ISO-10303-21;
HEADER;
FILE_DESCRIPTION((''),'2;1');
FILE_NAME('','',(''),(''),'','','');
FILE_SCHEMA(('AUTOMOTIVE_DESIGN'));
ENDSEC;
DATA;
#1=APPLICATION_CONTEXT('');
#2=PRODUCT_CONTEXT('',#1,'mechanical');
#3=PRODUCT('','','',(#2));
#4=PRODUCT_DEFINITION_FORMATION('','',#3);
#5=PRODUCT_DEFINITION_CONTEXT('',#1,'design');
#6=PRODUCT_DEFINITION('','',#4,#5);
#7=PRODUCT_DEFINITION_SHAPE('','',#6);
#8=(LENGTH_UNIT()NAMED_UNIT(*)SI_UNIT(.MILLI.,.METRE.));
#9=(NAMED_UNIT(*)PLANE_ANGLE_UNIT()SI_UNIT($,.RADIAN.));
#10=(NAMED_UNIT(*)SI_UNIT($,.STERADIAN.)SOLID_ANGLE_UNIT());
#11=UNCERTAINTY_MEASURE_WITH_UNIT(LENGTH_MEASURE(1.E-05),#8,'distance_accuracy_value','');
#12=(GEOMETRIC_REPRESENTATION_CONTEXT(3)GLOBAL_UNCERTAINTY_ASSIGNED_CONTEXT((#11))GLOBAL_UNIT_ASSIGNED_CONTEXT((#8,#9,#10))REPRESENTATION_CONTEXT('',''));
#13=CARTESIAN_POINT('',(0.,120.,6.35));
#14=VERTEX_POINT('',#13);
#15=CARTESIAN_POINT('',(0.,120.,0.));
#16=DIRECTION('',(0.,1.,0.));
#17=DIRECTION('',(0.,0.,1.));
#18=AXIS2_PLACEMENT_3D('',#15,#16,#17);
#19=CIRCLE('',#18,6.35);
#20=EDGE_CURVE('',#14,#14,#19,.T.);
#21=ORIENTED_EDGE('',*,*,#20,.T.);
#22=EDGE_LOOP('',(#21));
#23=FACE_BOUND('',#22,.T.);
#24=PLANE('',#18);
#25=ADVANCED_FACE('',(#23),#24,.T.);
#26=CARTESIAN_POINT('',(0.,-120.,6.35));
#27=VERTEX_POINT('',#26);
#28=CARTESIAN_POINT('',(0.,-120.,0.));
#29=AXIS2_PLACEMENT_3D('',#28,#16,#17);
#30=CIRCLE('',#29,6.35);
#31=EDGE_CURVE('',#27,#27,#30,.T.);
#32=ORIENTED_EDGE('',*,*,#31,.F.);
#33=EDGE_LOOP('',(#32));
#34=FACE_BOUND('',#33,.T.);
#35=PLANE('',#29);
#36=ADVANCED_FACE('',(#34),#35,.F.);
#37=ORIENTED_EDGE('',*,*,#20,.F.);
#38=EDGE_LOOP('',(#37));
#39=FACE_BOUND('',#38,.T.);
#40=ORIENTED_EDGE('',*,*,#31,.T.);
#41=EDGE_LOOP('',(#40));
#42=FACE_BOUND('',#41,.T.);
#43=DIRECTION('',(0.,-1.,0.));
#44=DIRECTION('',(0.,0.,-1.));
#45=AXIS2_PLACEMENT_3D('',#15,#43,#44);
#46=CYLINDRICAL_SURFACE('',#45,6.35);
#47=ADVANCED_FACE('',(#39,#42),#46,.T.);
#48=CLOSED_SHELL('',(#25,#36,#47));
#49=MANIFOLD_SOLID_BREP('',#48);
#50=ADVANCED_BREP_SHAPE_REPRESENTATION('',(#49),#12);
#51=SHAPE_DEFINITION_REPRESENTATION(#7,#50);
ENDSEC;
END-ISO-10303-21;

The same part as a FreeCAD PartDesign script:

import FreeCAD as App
import Part
import Sketcher
from FreeCAD import Vector

doc = App.newDocument("Part")
params = doc.addObject("Spreadsheet::Sheet", "Params")
for row, (alias, value) in enumerate([
    ("sketch1_diameter", "12.7 mm"),
    ("pad1_length", "240 mm"),
], start=1):
    params.set(f"A{row}", alias)
    params.set(f"B{row}", "=" + value)
    params.setAlias(f"B{row}", alias)

body = doc.addObject("PartDesign::Body", "Body")

# Sketch on XZ plane
sketch1 = doc.addObject("Sketcher::SketchObject", "Sketch")
body.addObject(sketch1)
sketch1.AttachmentSupport = (doc.XZ_Plane, [""])
sketch1.MapMode = "FlatFace"
sketch1.addGeometry(Part.Circle(Vector(0, 0, 0), Vector(0, 0, 1), 6.35), False)
sketch1.addConstraint([
    Sketcher.Constraint("Coincident", 0, 3, -1, 1),
    Sketcher.Constraint("Diameter", 0, 12.7),
])
sketch1.setExpression("Constraints[1]", "Params.sketch1_diameter")
pad1 = doc.addObject("PartDesign::Pad", "Pad")
body.addObject(pad1)
pad1.Profile = sketch1
pad1.setExpression("Length", "Params.pad1_length")
pad1.Midplane = True

doc.recompute()
